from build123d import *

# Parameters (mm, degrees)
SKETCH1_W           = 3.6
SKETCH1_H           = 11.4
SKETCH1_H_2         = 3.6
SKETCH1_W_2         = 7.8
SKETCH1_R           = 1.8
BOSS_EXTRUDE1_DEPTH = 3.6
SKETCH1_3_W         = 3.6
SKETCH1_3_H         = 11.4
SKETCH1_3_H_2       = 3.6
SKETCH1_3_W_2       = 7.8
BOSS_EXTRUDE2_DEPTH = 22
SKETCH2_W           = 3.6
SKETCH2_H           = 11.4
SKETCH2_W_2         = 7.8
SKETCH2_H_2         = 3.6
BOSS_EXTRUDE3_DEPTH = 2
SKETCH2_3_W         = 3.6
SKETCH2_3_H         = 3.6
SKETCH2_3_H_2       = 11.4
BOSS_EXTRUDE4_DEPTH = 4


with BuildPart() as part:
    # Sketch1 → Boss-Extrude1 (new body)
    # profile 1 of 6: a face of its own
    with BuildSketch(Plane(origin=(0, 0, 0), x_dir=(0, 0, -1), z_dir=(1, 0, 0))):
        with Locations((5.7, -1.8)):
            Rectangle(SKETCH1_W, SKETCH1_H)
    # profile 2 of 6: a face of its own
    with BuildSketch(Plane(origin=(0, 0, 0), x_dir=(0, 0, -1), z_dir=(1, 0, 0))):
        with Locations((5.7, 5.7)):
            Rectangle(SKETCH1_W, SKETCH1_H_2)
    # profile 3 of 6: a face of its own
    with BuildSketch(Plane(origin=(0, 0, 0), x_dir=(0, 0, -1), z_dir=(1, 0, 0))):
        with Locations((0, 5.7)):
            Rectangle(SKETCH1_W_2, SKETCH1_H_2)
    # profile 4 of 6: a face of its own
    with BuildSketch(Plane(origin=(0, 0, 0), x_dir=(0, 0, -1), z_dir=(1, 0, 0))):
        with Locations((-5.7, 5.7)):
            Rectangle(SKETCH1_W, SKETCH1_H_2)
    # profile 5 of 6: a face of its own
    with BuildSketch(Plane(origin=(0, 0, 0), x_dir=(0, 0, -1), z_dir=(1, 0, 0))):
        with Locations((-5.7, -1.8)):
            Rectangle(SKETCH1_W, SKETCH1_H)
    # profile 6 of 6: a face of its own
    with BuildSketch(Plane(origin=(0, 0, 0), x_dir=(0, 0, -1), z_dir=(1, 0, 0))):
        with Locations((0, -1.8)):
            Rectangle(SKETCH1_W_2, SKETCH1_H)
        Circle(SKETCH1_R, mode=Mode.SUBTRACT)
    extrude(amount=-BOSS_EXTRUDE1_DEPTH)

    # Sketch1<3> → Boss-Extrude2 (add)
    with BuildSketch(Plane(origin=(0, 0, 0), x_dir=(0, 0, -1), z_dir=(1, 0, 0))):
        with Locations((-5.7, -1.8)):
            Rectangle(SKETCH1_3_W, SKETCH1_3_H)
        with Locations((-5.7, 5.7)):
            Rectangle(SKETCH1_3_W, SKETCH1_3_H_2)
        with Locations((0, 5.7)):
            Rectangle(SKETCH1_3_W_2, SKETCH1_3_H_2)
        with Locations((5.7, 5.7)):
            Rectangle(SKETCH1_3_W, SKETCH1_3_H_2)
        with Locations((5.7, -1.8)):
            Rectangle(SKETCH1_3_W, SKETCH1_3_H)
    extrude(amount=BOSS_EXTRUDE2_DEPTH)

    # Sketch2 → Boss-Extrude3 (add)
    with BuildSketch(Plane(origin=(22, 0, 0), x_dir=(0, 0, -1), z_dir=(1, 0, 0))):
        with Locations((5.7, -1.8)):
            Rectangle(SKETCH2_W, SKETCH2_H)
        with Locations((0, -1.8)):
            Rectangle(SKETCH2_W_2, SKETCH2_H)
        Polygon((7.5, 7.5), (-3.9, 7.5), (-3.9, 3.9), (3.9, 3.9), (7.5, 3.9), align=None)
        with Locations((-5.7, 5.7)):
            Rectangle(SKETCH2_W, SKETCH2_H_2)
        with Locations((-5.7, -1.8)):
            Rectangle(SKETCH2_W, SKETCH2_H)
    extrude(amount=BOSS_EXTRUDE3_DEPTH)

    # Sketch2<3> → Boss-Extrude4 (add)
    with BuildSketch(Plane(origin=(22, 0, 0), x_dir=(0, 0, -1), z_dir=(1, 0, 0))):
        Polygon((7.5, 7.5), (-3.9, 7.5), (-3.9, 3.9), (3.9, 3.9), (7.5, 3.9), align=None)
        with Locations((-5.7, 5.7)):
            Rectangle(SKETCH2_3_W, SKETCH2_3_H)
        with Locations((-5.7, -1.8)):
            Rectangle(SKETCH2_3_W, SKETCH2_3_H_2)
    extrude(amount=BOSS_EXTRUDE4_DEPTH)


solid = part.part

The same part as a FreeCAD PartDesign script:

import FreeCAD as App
import Part
import Sketcher
Q = App.Units.Quantity

doc = App.newDocument("Part")
body = doc.addObject("PartDesign::Body", "Body")

# Sketch on YZ plane
sketch1 = body.newObject("Sketcher::SketchObject", "Sketch")
sketch1.AttachmentSupport = (doc.getObject("YZ_Plane"), [""])
sketch1.MapMode = "FlatFace"
sketch1.addGeometry([
    Part.LineSegment(App.Vector(-7.5, -7.5, 0), App.Vector(7.5, -7.5, 0)),  # 0
    Part.LineSegment(App.Vector(7.5, -7.5, 0), App.Vector(7.5, 7.5, 0)),  # 1
    Part.LineSegment(App.Vector(7.5, 7.5, 0), App.Vector(-7.5, 7.5, 0)),  # 2
    Part.LineSegment(App.Vector(-7.5, 7.5, 0), App.Vector(-7.5, -7.5, 0)),  # 3
    Part.Circle(App.Vector(0, 0, 0), App.Vector(0, 0, 1), 1.8),  # 4
], False)
sketch1.addConstraint([
    Sketcher.Constraint("Coincident", 0, 2, 1, 1),
    Sketcher.Constraint("Coincident", 1, 2, 2, 1),
    Sketcher.Constraint("Coincident", 2, 2, 3, 1),
    Sketcher.Constraint("Coincident", 3, 2, 0, 1),
    Sketcher.Constraint("Horizontal", 0),
    Sketcher.Constraint("Vertical", 1),
    Sketcher.Constraint("Horizontal", 2),
    Sketcher.Constraint("Vertical", 3),
    Sketcher.Constraint("Coincident", 4, 3, -1, 1),
    Sketcher.Constraint("Symmetric", 0, 2, 2, 2, -1, 1),
    Sketcher.Constraint("Equal", 2, 1),
    Sketcher.Constraint("Diameter", 4, Q("3.6 mm")),
    Sketcher.Constraint("DistanceX", 0, 1, 0, 2, Q("15 mm")),
])
pad1 = body.newObject("PartDesign::Pad", "Pad")
pad1.Profile = sketch1
pad1.Length = 3.6
pad1.Reversed = True

# Sketch on YZ plane
sketch2 = body.newObject("Sketcher::SketchObject", "Sketch001")
sketch2.AttachmentSupport = (doc.getObject("YZ_Plane"), [""])
sketch2.MapMode = "FlatFace"
sketch2.addGeometry([
    Part.LineSegment(App.Vector(-7.5, 7.5, 0), App.Vector(-7.5, 3.9, 0)),  # 0
    Part.LineSegment(App.Vector(-7.5, 3.9, 0), App.Vector(3.9, 3.9, 0)),  # 1
    Part.LineSegment(App.Vector(3.9, 3.9, 0), App.Vector(3.9, -3.9, 0)),  # 2
    Part.LineSegment(App.Vector(3.9, -3.9, 0), App.Vector(-7.5, -3.9, 0)),  # 3
    Part.LineSegment(App.Vector(-7.5, -3.9, 0), App.Vector(-7.5, -7.5, 0)),  # 4
    Part.LineSegment(App.Vector(-7.5, -7.5, 0), App.Vector(7.5, -7.5, 0)),  # 5
    Part.LineSegment(App.Vector(7.5, -7.5, 0), App.Vector(7.5, 7.5, 0)),  # 6
    Part.LineSegment(App.Vector(7.5, 7.5, 0), App.Vector(-7.5, 7.5, 0)),  # 7
], False)
sketch2.addConstraint([
    Sketcher.Constraint("Coincident", 0, 2, 1, 1),
    Sketcher.Constraint("Coincident", 1, 2, 2, 1),
    Sketcher.Constraint("Coincident", 2, 2, 3, 1),
    Sketcher.Constraint("Coincident", 3, 2, 4, 1),
    Sketcher.Constraint("Coincident", 4, 2, 5, 1),
    Sketcher.Constraint("Coincident", 5, 2, 6, 1),
    Sketcher.Constraint("Coincident", 6, 2, 7, 1),
    Sketcher.Constraint("Coincident", 7, 2, 0, 1),
    Sketcher.Constraint("Vertical", 0),
    Sketcher.Constraint("Horizontal", 1),
    Sketcher.Constraint("Vertical", 2),
    Sketcher.Constraint("Horizontal", 3),
    Sketcher.Constraint("Vertical", 4),
    Sketcher.Constraint("Horizontal", 5),
    Sketcher.Constraint("Vertical", 6),
    Sketcher.Constraint("Horizontal", 7),
    Sketcher.Constraint("Symmetric", 4, 2, 6, 2, -1, 1),
    Sketcher.Constraint("Symmetric", 0, 2, 3, 2, -1),
    Sketcher.Constraint("Equal", 7, 6),
    Sketcher.Constraint("DistanceX", 5, 1, 5, 2, Q("15 mm")),
    Sketcher.Constraint("DistanceX", 1, 1, 1, 2, Q("11.4 mm")),
    Sketcher.Constraint("DistanceY", 0, 2, 0, 1, Q("3.6 mm")),
])
pad2 = body.newObject("PartDesign::Pad", "Pad001")
pad2.Profile = sketch2
pad2.Length = 22

# Sketch on YZ plane
sketch3 = body.newObject("Sketcher::SketchObject", "Sketch002")
sketch3.AttachmentSupport = (doc.getObject("YZ_Plane"), [""])
sketch3.MapMode = "FlatFace"
sketch3.AttachmentOffset = App.Placement(App.Vector(0, 0, 22), App.Rotation())
sketch3.addGeometry([
    Part.LineSegment(App.Vector(-7.5, -7.5, 0), App.Vector(7.5, -7.5, 0)),
    Part.LineSegment(App.Vector(7.5, -7.5, 0), App.Vector(7.5, 7.5, 0)),
    Part.LineSegment(App.Vector(7.5, 7.5, 0), App.Vector(-7.5, 7.5, 0)),
    Part.LineSegment(App.Vector(-7.5, 7.5, 0), App.Vector(-7.5, -7.5, 0)),
], False)
sketch3.addConstraint([
    Sketcher.Constraint("Coincident", 0, 2, 1, 1),
    Sketcher.Constraint("Coincident", 1, 2, 2, 1),
    Sketcher.Constraint("Coincident", 2, 2, 3, 1),
    Sketcher.Constraint("Coincident", 3, 2, 0, 1),
    Sketcher.Constraint("Horizontal", 0),
    Sketcher.Constraint("Vertical", 1),
    Sketcher.Constraint("Horizontal", 2),
    Sketcher.Constraint("Vertical", 3),
    Sketcher.Constraint("Symmetric", 0, 2, 2, 2, -1, 1),
    Sketcher.Constraint("Equal", 2, 1),
    Sketcher.Constraint("DistanceX", 0, 1, 0, 2, Q("15 mm")),
])
pad3 = body.newObject("PartDesign::Pad", "Pad002")
pad3.Profile = sketch3
pad3.Length = 2

# Sketch on YZ plane
sketch4 = body.newObject("Sketcher::SketchObject", "Sketch003")
sketch4.AttachmentSupport = (doc.getObject("YZ_Plane"), [""])
sketch4.MapMode = "FlatFace"
sketch4.AttachmentOffset = App.Placement(App.Vector(0, 0, 22), App.Rotation())
sketch4.addGeometry([
    Part.LineSegment(App.Vector(7.5, -7.5, 0), App.Vector(7.5, 7.5, 0)),  # 0
    Part.LineSegment(App.Vector(7.5, 7.5, 0), App.Vector(-7.5, 7.5, 0)),  # 1
    Part.LineSegment(App.Vector(-7.5, 7.5, 0), App.Vector(-7.5, 3.9, 0)),  # 2
    Part.LineSegment(App.Vector(-7.5, 3.9, 0), App.Vector(3.9, 3.9, 0)),  # 3
    Part.LineSegment(App.Vector(3.9, 3.9, 0), App.Vector(3.9, -7.5, 0)),  # 4
    Part.LineSegment(App.Vector(3.9, -7.5, 0), App.Vector(7.5, -7.5, 0)),  # 5
], False)
sketch4.addConstraint([
    Sketcher.Constraint("Coincident", 0, 2, 1, 1),
    Sketcher.Constraint("Coincident", 1, 2, 2, 1),
    Sketcher.Constraint("Coincident", 2, 2, 3, 1),
    Sketcher.Constraint("Coincident", 3, 2, 4, 1),
    Sketcher.Constraint("Coincident", 4, 2, 5, 1),
    Sketcher.Constraint("Coincident", 5, 2, 0, 1),
    Sketcher.Constraint("Vertical", 0),
    Sketcher.Constraint("Horizontal", 1),
    Sketcher.Constraint("Vertical", 2),
    Sketcher.Constraint("Horizontal", 3),
    Sketcher.Constraint("Vertical", 4),
    Sketcher.Constraint("Horizontal", 5),
    Sketcher.Constraint("Symmetric", 1, 2, 5, 2, -1, 1),
    Sketcher.Constraint("Equal", 1, 0),
    Sketcher.Constraint("Equal", 5, 2),
    Sketcher.Constraint("DistanceX", 1, 2, 1, 1, Q("15 mm")),
    Sketcher.Constraint("DistanceX", 3, 1, 3, 2, Q("11.4 mm")),
])
pad4 = body.newObject("PartDesign::Pad", "Pad003")
pad4.Profile = sketch4
pad4.Length = 4

doc.recompute()
